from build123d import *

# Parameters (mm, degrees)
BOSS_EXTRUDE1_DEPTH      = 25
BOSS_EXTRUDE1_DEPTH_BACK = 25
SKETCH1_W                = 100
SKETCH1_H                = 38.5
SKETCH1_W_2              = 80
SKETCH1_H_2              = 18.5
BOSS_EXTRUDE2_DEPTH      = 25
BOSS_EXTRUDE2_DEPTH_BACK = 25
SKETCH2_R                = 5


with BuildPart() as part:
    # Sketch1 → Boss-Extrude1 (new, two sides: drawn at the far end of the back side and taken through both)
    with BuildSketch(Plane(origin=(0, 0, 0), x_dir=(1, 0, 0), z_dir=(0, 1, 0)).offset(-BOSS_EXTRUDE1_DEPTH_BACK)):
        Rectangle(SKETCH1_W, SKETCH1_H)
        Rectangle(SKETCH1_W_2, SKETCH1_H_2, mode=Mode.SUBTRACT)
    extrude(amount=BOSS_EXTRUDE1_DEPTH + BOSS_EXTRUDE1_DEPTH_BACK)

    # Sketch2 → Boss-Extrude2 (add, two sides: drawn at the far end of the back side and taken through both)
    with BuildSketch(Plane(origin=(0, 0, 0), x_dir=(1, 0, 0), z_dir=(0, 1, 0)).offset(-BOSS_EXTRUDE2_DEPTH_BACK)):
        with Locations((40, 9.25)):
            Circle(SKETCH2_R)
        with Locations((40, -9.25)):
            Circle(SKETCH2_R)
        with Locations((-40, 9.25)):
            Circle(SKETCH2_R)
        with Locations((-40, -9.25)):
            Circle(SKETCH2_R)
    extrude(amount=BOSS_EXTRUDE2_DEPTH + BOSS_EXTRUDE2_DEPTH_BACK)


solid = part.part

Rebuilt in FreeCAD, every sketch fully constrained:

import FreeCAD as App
import Part
import Sketcher

V = App.Vector

doc = App.newDocument("Part")
params = doc.addObject("Spreadsheet::Sheet", "Params")
for row, (alias, value) in enumerate([
    ("sketch1_width", "100 mm"),
    ("sketch1_width2", "80 mm"),
    ("sketch1_height", "38.5 mm"),
    ("sketch1_height2", "18.5 mm"),
    ("pad1_length", "25 mm"),
    ("pad1_length2", "25 mm"),
    ("sketch2_diameter", "10 mm"),
    ("pad2_length", "25 mm"),
    ("pad2_length2", "25 mm"),
], start=1):
    params.set(f"A{row}", alias)
    params.set(f"B{row}", "=" + value)
    params.setAlias(f"B{row}", alias)

body = doc.addObject("PartDesign::Body", "Body")

sketch1 = body.newObject("Sketcher::SketchObject", "Sketch")
sketch1.AttachmentSupport = (doc.getObject("XZ_Plane"), [""])
sketch1.MapMode = "FlatFace"
sketch1.addGeometry(Part.LineSegment(V(-50, -19, 0), V(-50, 19, 0)), False)
sketch1.addGeometry(Part.LineSegment(V(-50, 19, 0), V(50, 19, 0)), False)
sketch1.addGeometry(Part.LineSegment(V(50, 19, 0), V(50, -19, 0)), False)
sketch1.addGeometry(Part.LineSegment(V(50, -19, 0), V(-50, -19, 0)), False)
sketch1.addGeometry(Part.LineSegment(V(40, 9, 0), V(-40, 9, 0)), False)
sketch1.addGeometry(Part.LineSegment(V(-40, 9, 0), V(-40, -9, 0)), False)
sketch1.addGeometry(Part.LineSegment(V(-40, -9, 0), V(40, -9, 0)), False)
sketch1.addGeometry(Part.LineSegment(V(40, -9, 0), V(40, 9, 0)), False)
sketch1.addConstraint(Sketcher.Constraint("Coincident", 0, 2, 1, 1))
sketch1.addConstraint(Sketcher.Constraint("Coincident", 1, 2, 2, 1))
sketch1.addConstraint(Sketcher.Constraint("Coincident", 2, 2, 3, 1))
sketch1.addConstraint(Sketcher.Constraint("Coincident", 3, 2, 0, 1))
sketch1.addConstraint(Sketcher.Constraint("Coincident", 4, 2, 5, 1))
sketch1.addConstraint(Sketcher.Constraint("Coincident", 5, 2, 6, 1))
sketch1.addConstraint(Sketcher.Constraint("Coincident", 6, 2, 7, 1))
sketch1.addConstraint(Sketcher.Constraint("Coincident", 7, 2, 4, 1))
sketch1.addConstraint(Sketcher.Constraint("Vertical", 0))
sketch1.addConstraint(Sketcher.Constraint("Horizontal", 1))
sketch1.addConstraint(Sketcher.Constraint("Vertical", 2))
sketch1.addConstraint(Sketcher.Constraint("Horizontal", 3))
sketch1.addConstraint(Sketcher.Constraint("Horizontal", 4))
sketch1.addConstraint(Sketcher.Constraint("Vertical", 5))
sketch1.addConstraint(Sketcher.Constraint("Horizontal", 6))
sketch1.addConstraint(Sketcher.Constraint("Vertical", 7))
sketch1.addConstraint(Sketcher.Constraint("Symmetric", 0, 2, 2, 2, -1, 1))
sketch1.addConstraint(Sketcher.Constraint("Symmetric", 4, 2, 6, 2, -1, 1))
sketch1.addConstraint(Sketcher.Constraint("DistanceX", 1, 1, 1, 2, 100.0))
sketch1.addConstraint(Sketcher.Constraint("DistanceX", 4, 2, 4, 1, 80.0))
sketch1.addConstraint(Sketcher.Constraint("DistanceY", 0, 1, 0, 2, 38.5))
sketch1.addConstraint(Sketcher.Constraint("DistanceY", 5, 2, 5, 1, 18.5))
sketch1.setExpression("Constraints[18]", "Params.sketch1_width")
sketch1.setExpression("Constraints[19]", "Params.sketch1_width2")
sketch1.setExpression("Constraints[20]", "Params.sketch1_height")
sketch1.setExpression("Constraints[21]", "Params.sketch1_height2")
pad1 = body.newObject("PartDesign::Pad", "Pad")
pad1.Profile = sketch1
pad1.Type = "TwoLengths"
pad1.setExpression("Length", "Params.pad1_length")
pad1.setExpression("Length2", "Params.pad1_length2")
pad1.Reversed = True

sketch2 = body.newObject("Sketcher::SketchObject", "Sketch001")
sketch2.AttachmentSupport = (doc.getObject("XZ_Plane"), [""])
sketch2.MapMode = "FlatFace"
sketch2.addGeometry(Part.Circle(V(40, -9, 0), V(0, 0, 1), 5), False)
sketch2.addGeometry(Part.Circle(V(40, 9, 0), V(0, 0, 1), 5), False)
sketch2.addGeometry(Part.Circle(V(-40, -9, 0), V(0, 0, 1), 5), False)
sketch2.addGeometry(Part.Circle(V(-40, 9, 0), V(0, 0, 1), 5), False)
sketch2.addConstraint(Sketcher.Constraint("Equal", 0, 1))
sketch2.addConstraint(Sketcher.Constraint("Equal", 1, 2))
sketch2.addConstraint(Sketcher.Constraint("Equal", 2, 3))
sketch2.addConstraint(Sketcher.Constraint("Symmetric", 1, 3, 2, 3, -1, 1))
sketch2.addConstraint(Sketcher.Constraint("Symmetric", 0, 3, 3, 3, -1, 1))
sketch2.addConstraint(Sketcher.Constraint("Symmetric", 0, 3, 2, 3, -2))
sketch2.addConstraint(Sketcher.Constraint("Diameter", 0, 10.0))
sketch2.addConstraint(Sketcher.Constraint("DistanceX", -1, 1, 0, 3, 40.0))
sketch2.addConstraint(Sketcher.Constraint("DistanceY", 0, 3, 1, 3, 18.5))
sketch2.setExpression("Constraints[6]", "Params.sketch2_diameter")
pad2 = body.newObject("PartDesign::Pad", "Pad001")
pad2.Profile = sketch2
pad2.Type = "TwoLengths"
pad2.setExpression("Length", "Params.pad2_length")
pad2.setExpression("Length2", "Params.pad2_length2")
pad2.Reversed = True

doc.recompute()
